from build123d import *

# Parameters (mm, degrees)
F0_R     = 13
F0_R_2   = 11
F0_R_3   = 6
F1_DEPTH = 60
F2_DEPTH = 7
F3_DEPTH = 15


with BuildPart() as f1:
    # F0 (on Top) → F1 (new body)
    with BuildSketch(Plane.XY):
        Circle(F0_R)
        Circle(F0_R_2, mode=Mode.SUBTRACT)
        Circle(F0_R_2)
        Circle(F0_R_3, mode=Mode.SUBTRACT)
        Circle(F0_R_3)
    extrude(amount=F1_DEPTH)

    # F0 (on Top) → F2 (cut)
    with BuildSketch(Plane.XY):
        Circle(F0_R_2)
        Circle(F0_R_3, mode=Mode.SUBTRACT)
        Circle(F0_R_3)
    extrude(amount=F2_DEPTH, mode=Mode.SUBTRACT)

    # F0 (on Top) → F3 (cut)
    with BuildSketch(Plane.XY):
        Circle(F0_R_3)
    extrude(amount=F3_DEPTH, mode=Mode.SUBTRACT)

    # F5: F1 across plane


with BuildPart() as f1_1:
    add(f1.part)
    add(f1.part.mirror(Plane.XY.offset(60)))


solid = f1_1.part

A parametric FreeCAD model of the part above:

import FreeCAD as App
import Part
import Sketcher
Q = App.Units.Quantity

doc = App.newDocument("Part")
body = doc.addObject("PartDesign::Body", "Body")

# Sketch on XY plane
sketch1 = doc.addObject("Sketcher::SketchObject", "Sketch")
body.addObject(sketch1)
sketch1.AttachmentSupport = (doc.XY_Plane, [""])
sketch1.MapMode = "FlatFace"
sketch1.addGeometry(Part.Circle(App.Vector(0, 0, 0), App.Vector(0, 0, 1), 13), False)
sketch1.addConstraint([
    Sketcher.Constraint("Coincident", 0, 3, -1, 1),
    Sketcher.Constraint("Diameter", 0, Q("26 mm")),
])
pad1 = doc.addObject("PartDesign::Pad", "Pad")
body.addObject(pad1)
pad1.Profile = sketch1
pad1.Length = 60

# Sketch on XY plane
sketch2 = doc.addObject("Sketcher::SketchObject", "Sketch001")
body.addObject(sketch2)
sketch2.AttachmentSupport = (doc.XY_Plane, [""])
sketch2.MapMode = "FlatFace"
sketch2.addGeometry(Part.Circle(App.Vector(0, 0, 0), App.Vector(0, 0, 1), 11), False)
sketch2.addConstraint([
    Sketcher.Constraint("Coincident", 0, 3, -1, 1),
    Sketcher.Constraint("Diameter", 0, Q("22 mm")),
])
pocket1 = doc.addObject("PartDesign::Pocket", "Pocket")
body.addObject(pocket1)
pocket1.Profile = sketch2
pocket1.Length = 7
pocket1.Reversed = True

# Sketch on XY plane
sketch3 = doc.addObject("Sketcher::SketchObject", "Sketch002")
body.addObject(sketch3)
sketch3.AttachmentSupport = (doc.XY_Plane, [""])
sketch3.MapMode = "FlatFace"
sketch3.addGeometry(Part.Circle(App.Vector(0, 0, 0), App.Vector(0, 0, 1), 6), False)
sketch3.addConstraint([
    Sketcher.Constraint("Coincident", 0, 3, -1, 1),
    Sketcher.Constraint("Diameter", 0, Q("12 mm")),
])
pocket2 = doc.addObject("PartDesign::Pocket", "Pocket001")
body.addObject(pocket2)
pocket2.Profile = sketch3
pocket2.Length = 15
pocket2.Reversed = True
body2 = doc.addObject("PartDesign::Body", "Body001")
doc.recompute()

body2.BaseFeature = body
doc.recompute()

mirroring = doc.addObject("Part::Mirroring", "Mirroring")
mirroring.Source = body
mirroring.Base = App.Vector(0, 0, 60)
mirroring.Normal = App.Vector(0, 0, 1)
body3 = doc.addObject("PartDesign::Body", "Body002")
body3.BaseFeature = mirroring
boolean = doc.addObject("PartDesign::Boolean", "Boolean")
body2.addObject(boolean)
boolean.Type = "Fuse"
boolean.addObjects([body3])
doc.recompute()
mirroring.Visibility = False

doc.recompute()
